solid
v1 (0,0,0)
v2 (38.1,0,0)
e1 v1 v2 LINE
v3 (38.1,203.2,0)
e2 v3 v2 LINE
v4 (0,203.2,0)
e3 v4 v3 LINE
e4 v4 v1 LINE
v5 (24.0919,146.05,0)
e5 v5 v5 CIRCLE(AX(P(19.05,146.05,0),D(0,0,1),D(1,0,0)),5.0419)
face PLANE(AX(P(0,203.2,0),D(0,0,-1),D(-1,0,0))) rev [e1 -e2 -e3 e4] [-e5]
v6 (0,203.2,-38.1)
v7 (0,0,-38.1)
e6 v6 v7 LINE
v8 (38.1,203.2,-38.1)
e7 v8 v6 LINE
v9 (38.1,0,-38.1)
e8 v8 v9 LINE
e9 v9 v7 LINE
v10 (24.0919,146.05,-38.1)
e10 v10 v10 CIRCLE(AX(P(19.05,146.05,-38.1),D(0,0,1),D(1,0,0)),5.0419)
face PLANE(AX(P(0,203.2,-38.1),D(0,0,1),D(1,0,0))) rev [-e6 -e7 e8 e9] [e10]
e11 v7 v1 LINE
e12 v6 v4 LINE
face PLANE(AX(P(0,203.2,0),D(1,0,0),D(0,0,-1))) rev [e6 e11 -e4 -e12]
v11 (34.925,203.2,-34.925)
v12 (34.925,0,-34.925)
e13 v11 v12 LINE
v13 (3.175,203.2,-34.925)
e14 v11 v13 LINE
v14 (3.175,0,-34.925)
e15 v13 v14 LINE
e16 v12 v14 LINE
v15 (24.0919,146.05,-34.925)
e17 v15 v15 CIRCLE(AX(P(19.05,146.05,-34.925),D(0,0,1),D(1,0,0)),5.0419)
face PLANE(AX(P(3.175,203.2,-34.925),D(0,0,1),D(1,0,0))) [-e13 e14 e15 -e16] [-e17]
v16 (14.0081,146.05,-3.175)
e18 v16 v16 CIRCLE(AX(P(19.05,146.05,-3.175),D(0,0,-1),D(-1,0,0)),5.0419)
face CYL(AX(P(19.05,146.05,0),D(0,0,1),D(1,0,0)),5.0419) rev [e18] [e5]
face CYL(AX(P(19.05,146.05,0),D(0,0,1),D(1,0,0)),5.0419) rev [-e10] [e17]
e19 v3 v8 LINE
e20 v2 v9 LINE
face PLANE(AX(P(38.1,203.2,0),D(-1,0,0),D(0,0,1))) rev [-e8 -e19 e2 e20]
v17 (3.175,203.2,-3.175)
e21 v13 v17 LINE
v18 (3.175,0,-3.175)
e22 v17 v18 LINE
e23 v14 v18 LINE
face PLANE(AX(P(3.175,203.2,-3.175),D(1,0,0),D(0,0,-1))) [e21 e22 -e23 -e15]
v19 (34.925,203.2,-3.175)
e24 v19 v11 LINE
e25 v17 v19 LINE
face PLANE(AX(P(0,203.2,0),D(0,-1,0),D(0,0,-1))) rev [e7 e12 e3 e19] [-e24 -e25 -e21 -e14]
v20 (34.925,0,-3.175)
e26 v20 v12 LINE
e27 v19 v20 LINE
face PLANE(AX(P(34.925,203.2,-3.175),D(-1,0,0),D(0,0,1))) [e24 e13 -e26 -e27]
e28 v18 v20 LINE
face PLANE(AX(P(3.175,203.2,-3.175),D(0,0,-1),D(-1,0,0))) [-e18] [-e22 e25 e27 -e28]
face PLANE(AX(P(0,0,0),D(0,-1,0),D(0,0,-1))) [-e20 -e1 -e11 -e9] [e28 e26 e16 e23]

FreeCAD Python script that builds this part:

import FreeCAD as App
import Part
import Sketcher
from FreeCAD import Vector
Q = App.Units.Quantity


def add_polygon(sketch, points):
    """Adds a closed chain of lines whose ends are joined by coincident constraints."""
    first, n = sketch.GeometryCount, len(points)
    for a, b in zip(points, points[1:] + points[:1]):
        sketch.addGeometry(Part.LineSegment(App.Vector(*a, 0), App.Vector(*b, 0)), False)
    for i in range(n):
        sketch.addConstraint(Sketcher.Constraint("Coincident", first + i, 2, first + (i + 1) % n, 1))

doc = App.newDocument("Part")
params = doc.addObject("Spreadsheet::Sheet", "Params")
for row, (alias, value) in enumerate([
    ("sketch1_width", "1.5 in"),
    ("sketch1_width2", "1.25 in"),
    ("pad1_length", "8 in"),
    ("sketch2_diameter", "0.397 in"),
    ("hole_diameter", "0.397 in"),
], start=1):
    params.set(f"A{row}", alias)
    params.set(f"B{row}", "=" + value)
    params.setAlias(f"B{row}", alias)

body = doc.addObject("PartDesign::Body", "Body")

sketch1 = body.newObject("Sketcher::SketchObject", "Sketch")
sketch1.AttachmentSupport = (doc.getObject("XZ_Plane"), [""])
sketch1.MapMode = "FlatFace"
add_polygon(sketch1, [(0, -38), (0, 0), (38, 0), (38, -38)])
add_polygon(sketch1, [(35, -3), (3, -3), (3, -35), (35, -35)])
sketch1.addConstraint([
    Sketcher.Constraint("Vertical", 0),
    Sketcher.Constraint("Horizontal", 1),
    Sketcher.Constraint("Vertical", 2),
    Sketcher.Constraint("Horizontal", 3),
    Sketcher.Constraint("Horizontal", 4),
    Sketcher.Constraint("Vertical", 5),
    Sketcher.Constraint("Horizontal", 6),
    Sketcher.Constraint("Vertical", 7),
    Sketcher.Constraint("Coincident", 0, 2, -1, 1),
    Sketcher.Constraint("Equal", 3, 0),
    Sketcher.Constraint("Equal", 6, 5),
    Sketcher.Constraint("DistanceX", 1, 1, 1, 2, Q("1.5 in")),
    Sketcher.Constraint("DistanceX", 4, 2, 4, 1, Q("1.25 in")),
    Sketcher.Constraint("DistanceX", -1, 1, 4, 2, Q("0.125 in")),
    Sketcher.Constraint("DistanceY", 4, 2, -1, 1, Q("0.125 in")),
])
sketch1.setExpression("Constraints[19]", "Params.sketch1_width")
sketch1.setExpression("Constraints[20]", "Params.sketch1_width2")
pad1 = body.newObject("PartDesign::Pad", "Pad")
pad1.Profile = sketch1
pad1.setExpression("Length", "Params.pad1_length")
pad1.Reversed = True

sketch2 = body.newObject("Sketcher::SketchObject", "Sketch001")
sketch2.AttachmentSupport = (doc.getObject("XY_Plane"), [""])
sketch2.MapMode = "FlatFace"
sketch2.addGeometry(Part.Circle(Vector(19, 146, 0), Vector(0, 0, 1), 5), False)
sketch2.addConstraint([
    Sketcher.Constraint("Diameter", 0, Q("0.397 in")),
    Sketcher.Constraint("DistanceX", -1, 1, 0, 3, Q("0.75 in")),
    Sketcher.Constraint("DistanceY", -1, 1, 0, 3, Q("5.75 in")),
])
sketch2.setExpression("Constraints[0]", "Params.sketch2_diameter")
doc.recompute()
hole = body.newObject("PartDesign::Hole", "Hole")
hole.Profile = sketch2
hole.ThreadType = "None"
hole.setExpression("Diameter", "Params.hole_diameter")
hole.DepthType = "ThroughAll"

doc.recompute()
